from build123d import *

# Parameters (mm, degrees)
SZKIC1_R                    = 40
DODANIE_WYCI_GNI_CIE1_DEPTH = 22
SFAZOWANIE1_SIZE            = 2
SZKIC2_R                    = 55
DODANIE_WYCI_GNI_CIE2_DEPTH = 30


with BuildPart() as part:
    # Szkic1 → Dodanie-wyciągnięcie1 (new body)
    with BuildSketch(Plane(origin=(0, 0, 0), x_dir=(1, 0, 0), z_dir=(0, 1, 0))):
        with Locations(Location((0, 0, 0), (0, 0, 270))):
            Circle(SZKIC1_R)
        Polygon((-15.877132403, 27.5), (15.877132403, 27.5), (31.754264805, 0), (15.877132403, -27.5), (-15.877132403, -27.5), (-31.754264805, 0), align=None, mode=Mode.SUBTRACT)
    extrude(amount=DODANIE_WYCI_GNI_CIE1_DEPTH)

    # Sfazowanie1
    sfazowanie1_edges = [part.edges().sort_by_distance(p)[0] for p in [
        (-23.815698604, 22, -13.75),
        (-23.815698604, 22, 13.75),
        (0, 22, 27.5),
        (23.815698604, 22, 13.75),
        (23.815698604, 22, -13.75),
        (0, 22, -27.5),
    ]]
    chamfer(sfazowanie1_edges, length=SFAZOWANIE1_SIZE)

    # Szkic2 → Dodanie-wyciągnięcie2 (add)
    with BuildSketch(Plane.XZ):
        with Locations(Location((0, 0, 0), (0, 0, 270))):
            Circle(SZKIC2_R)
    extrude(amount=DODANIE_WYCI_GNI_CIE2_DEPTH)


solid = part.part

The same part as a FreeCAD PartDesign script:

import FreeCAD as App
import Part
import Sketcher

V = App.Vector
Q = App.Units.Quantity


def edges_at(feature, points):
    """Names of the edges that pass closest to the given points."""
    edges = feature.Shape.Edges
    near = lambda p: min(range(len(edges)), key=lambda i: edges[i].distToShape(Part.Vertex(*p))[0])
    return sorted({f"Edge{near(p) + 1}" for p in points})

doc = App.newDocument("Part")
body = doc.addObject("PartDesign::Body", "Body")

# Sketch on XZ plane
sketch1 = doc.addObject("Sketcher::SketchObject", "Sketch")
body.addObject(sketch1)
sketch1.AttachmentSupport = (doc.XZ_Plane, [""])
sketch1.MapMode = "FlatFace"
sketch1.addGeometry([
    Part.Circle(V(0, 0, 0), V(0, 0, 1), 40),  # 0
    Part.LineSegment(V(-31.754265, 0, 0), V(-15.877132, -27.5, 0)),  # 1
    Part.LineSegment(V(-15.877132, -27.5, 0), V(15.877132, -27.5, 0)),  # 2
    Part.LineSegment(V(15.877132, -27.5, 0), V(31.754265, 0, 0)),  # 3
    Part.LineSegment(V(31.754265, 0, 0), V(15.877132, 27.5, 0)),  # 4
    Part.LineSegment(V(15.877132, 27.5, 0), V(-15.877132, 27.5, 0)),  # 5
    Part.LineSegment(V(-15.877132, 27.5, 0), V(-31.754265, 0, 0)),  # 6
], False)
sketch1.addConstraint([
    Sketcher.Constraint("Coincident", 1, 2, 2, 1),
    Sketcher.Constraint("Coincident", 2, 2, 3, 1),
    Sketcher.Constraint("Coincident", 3, 2, 4, 1),
    Sketcher.Constraint("Coincident", 4, 2, 5, 1),
    Sketcher.Constraint("Coincident", 5, 2, 6, 1),
    Sketcher.Constraint("Coincident", 6, 2, 1, 1),
    Sketcher.Constraint("Horizontal", 2),
    Sketcher.Constraint("Horizontal", 5),
    Sketcher.Constraint("Coincident", 0, 3, -1, 1),
    Sketcher.Constraint("Symmetric", 1, 2, 4, 2, -1, 1),
    Sketcher.Constraint("Symmetric", 3, 2, 6, 2, -1, 1),
    Sketcher.Constraint("PointOnObject", 3, 2, -1),
    Sketcher.Constraint("Parallel", 3, 6),
    Sketcher.Constraint("Vertical", 2, 2, 4, 2),
    Sketcher.Constraint("Diameter", 0, 80.0),
    Sketcher.Constraint("Angle", 1, Q("-60 deg")),
    Sketcher.Constraint("DistanceY", 2, 2, 4, 2, 55.0),
    Sketcher.Constraint("DistanceX", 2, 1, 2, 2, 31.754265),
])
pad1 = doc.addObject("PartDesign::Pad", "Pad")
body.addObject(pad1)
pad1.Profile = sketch1
pad1.Length = 22
pad1.Reversed = True
doc.recompute()

chamfer = doc.addObject("PartDesign::Chamfer", "Chamfer")
body.addObject(chamfer)
chamfer.Base = (pad1, edges_at(pad1, [
    (-23.816, 22, -13.75),
    (-23.816, 22, 13.75),
    (0, 22, 27.5),
    (23.816, 22, 13.75),
    (23.816, 22, -13.75),
    (0, 22, -27.5),
]))
chamfer.Size = 2

# Sketch on XZ plane
sketch2 = doc.addObject("Sketcher::SketchObject", "Sketch001")
body.addObject(sketch2)
sketch2.AttachmentSupport = (doc.XZ_Plane, [""])
sketch2.MapMode = "FlatFace"
sketch2.addGeometry(Part.Circle(V(0, 0, 0), V(0, 0, 1), 55), False)
sketch2.addConstraint([
    Sketcher.Constraint("Coincident", 0, 3, -1, 1),
    Sketcher.Constraint("Diameter", 0, 110.0),
])
pad2 = doc.addObject("PartDesign::Pad", "Pad001")
body.addObject(pad2)
pad2.Profile = sketch2
pad2.Length = 30

doc.recompute()
